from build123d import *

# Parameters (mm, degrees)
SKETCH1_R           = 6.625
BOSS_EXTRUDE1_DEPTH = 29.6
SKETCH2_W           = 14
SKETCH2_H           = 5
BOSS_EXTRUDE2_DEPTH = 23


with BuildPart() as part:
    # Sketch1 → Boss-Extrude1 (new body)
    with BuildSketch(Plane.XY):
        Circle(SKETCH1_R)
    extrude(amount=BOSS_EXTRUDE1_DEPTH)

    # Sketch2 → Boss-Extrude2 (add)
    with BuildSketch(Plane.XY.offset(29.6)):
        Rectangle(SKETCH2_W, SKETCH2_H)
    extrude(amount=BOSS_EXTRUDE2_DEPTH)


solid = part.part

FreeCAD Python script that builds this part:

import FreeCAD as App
import Part
import Sketcher
from FreeCAD import Vector

doc = App.newDocument("Part")
params = doc.addObject("Spreadsheet::Sheet", "Params")
for row, (alias, value) in enumerate([
    ("sketch1_diameter", "13.25 mm"),
    ("pad1_length", "29.6 mm"),
    ("sketch2_width", "14 mm"),
    ("sketch2_height", "5 mm"),
    ("pad2_length", "23 mm"),
], start=1):
    params.set(f"A{row}", alias)
    params.set(f"B{row}", "=" + value)
    params.setAlias(f"B{row}", alias)

body = doc.addObject("PartDesign::Body", "Body")

# Sketch on XY plane
sketch1 = body.newObject("Sketcher::SketchObject", "Sketch")
sketch1.AttachmentSupport = (doc.getObject("XY_Plane"), [""])
sketch1.MapMode = "FlatFace"
sketch1.addGeometry(Part.Circle(Vector(0, 0, 0), Vector(0, 0, 1), 6.625), False)
sketch1.addConstraint(Sketcher.Constraint("Coincident", 0, 3, -1, 1))
sketch1.addConstraint(Sketcher.Constraint("Diameter", 0, 13.25))
sketch1.setExpression("Constraints[1]", "Params.sketch1_diameter")
pad1 = body.newObject("PartDesign::Pad", "Pad")
pad1.Profile = sketch1
pad1.setExpression("Length", "Params.pad1_length")

# Sketch on XY plane
sketch2 = body.newObject("Sketcher::SketchObject", "Sketch001")
sketch2.AttachmentSupport = (doc.getObject("XY_Plane"), [""])
sketch2.MapMode = "FlatFace"
sketch2.AttachmentOffset = App.Placement(Vector(0, 0, 29.6), App.Rotation())
sketch2.addGeometry(Part.LineSegment(Vector(-7, 2.5, 0), Vector(-7, -2.5, 0)), False)
sketch2.addGeometry(Part.LineSegment(Vector(-7, -2.5, 0), Vector(7, -2.5, 0)), False)
sketch2.addGeometry(Part.LineSegment(Vector(7, -2.5, 0), Vector(7, 2.5, 0)), False)
sketch2.addGeometry(Part.LineSegment(Vector(7, 2.5, 0), Vector(-7, 2.5, 0)), False)
sketch2.addConstraint(Sketcher.Constraint("Coincident", 0, 2, 1, 1))
sketch2.addConstraint(Sketcher.Constraint("Coincident", 1, 2, 2, 1))
sketch2.addConstraint(Sketcher.Constraint("Coincident", 2, 2, 3, 1))
sketch2.addConstraint(Sketcher.Constraint("Coincident", 3, 2, 0, 1))
sketch2.addConstraint(Sketcher.Constraint("Vertical", 0))
sketch2.addConstraint(Sketcher.Constraint("Horizontal", 1))
sketch2.addConstraint(Sketcher.Constraint("Vertical", 2))
sketch2.addConstraint(Sketcher.Constraint("Horizontal", 3))
sketch2.addConstraint(Sketcher.Constraint("Symmetric", 0, 2, 2, 2, -1, 1))
sketch2.addConstraint(Sketcher.Constraint("DistanceX", 1, 1, 1, 2, 14.0))
sketch2.addConstraint(Sketcher.Constraint("DistanceY", 0, 2, 0, 1, 5.0))
sketch2.setExpression("Constraints[9]", "Params.sketch2_width")
sketch2.setExpression("Constraints[10]", "Params.sketch2_height")
pad2 = body.newObject("PartDesign::Pad", "Pad001")
pad2.Profile = sketch2
pad2.setExpression("Length", "Params.pad2_length")

doc.recompute()
